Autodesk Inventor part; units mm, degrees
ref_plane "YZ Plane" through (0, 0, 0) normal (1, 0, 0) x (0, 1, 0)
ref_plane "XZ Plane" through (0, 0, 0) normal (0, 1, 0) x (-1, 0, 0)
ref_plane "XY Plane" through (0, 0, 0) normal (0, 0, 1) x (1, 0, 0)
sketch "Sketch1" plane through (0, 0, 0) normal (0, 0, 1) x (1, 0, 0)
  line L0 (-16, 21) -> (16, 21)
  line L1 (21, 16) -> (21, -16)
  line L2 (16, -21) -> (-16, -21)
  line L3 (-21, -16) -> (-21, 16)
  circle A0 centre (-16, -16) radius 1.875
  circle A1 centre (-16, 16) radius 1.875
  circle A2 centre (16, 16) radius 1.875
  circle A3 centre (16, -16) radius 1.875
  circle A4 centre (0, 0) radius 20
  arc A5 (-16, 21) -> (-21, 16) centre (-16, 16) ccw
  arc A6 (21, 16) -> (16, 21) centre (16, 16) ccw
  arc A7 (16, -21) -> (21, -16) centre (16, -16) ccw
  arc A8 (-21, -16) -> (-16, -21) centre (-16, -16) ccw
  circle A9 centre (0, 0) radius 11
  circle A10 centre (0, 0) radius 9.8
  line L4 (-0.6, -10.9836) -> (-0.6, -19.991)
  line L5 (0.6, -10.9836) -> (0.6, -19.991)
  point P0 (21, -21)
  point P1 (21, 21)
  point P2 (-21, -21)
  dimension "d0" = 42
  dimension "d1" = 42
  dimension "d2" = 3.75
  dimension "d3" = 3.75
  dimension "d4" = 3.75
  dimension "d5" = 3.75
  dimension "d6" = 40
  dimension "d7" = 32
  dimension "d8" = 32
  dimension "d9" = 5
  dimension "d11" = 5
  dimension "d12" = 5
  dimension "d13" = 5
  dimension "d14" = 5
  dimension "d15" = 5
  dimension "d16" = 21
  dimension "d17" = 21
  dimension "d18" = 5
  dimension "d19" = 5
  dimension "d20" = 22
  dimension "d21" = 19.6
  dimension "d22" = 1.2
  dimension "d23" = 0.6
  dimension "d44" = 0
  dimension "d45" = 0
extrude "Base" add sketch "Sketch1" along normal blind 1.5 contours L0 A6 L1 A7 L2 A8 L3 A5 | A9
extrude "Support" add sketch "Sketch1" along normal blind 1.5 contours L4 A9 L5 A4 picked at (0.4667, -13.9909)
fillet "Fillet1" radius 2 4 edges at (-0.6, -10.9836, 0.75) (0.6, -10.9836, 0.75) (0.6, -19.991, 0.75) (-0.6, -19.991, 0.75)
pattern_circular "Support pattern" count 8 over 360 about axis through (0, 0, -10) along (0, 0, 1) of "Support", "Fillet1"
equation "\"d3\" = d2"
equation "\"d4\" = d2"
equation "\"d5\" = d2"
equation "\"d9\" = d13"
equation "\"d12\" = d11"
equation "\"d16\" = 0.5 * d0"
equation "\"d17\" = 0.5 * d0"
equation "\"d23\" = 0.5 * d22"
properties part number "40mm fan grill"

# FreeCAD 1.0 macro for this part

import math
import FreeCAD as App
import Part
import Sketcher

V = App.Vector
Q = App.Units.Quantity


def edges_at(feature, points):
    """Names of the edges that pass closest to the given points."""
    edges = feature.Shape.Edges
    near = lambda p: min(range(len(edges)), key=lambda i: edges[i].distToShape(Part.Vertex(*p))[0])
    return sorted({f"Edge{near(p) + 1}" for p in points})

doc = App.newDocument("Part")
body = doc.addObject("PartDesign::Body", "Body")
body.AllowCompound = True

# Sketch on XY plane
sketch1 = doc.addObject("Sketcher::SketchObject", "Sketch")
body.addObject(sketch1)
sketch1.AttachmentSupport = (doc.XY_Plane, [""])
sketch1.MapMode = "FlatFace"
sketch1.addGeometry([
    Part.LineSegment(V(16, 21, 0), V(-16, 21, 0)),  # 0
    Part.ArcOfCircle(Part.Circle(V(-16, 16, 0), V(0, 0, 1), 5), math.radians(90), math.radians(180)),  # 1
    Part.LineSegment(V(-21, 16, 0), V(-21, -16, 0)),  # 2
    Part.ArcOfCircle(Part.Circle(V(-16, -16, 0), V(0, 0, 1), 5), math.radians(180), math.radians(270)),  # 3
    Part.LineSegment(V(-16, -21, 0), V(16, -21, 0)),  # 4
    Part.ArcOfCircle(Part.Circle(V(16, -16, 0), V(0, 0, 1), 5), math.radians(-90), math.radians(0)),  # 5
    Part.LineSegment(V(21, -16, 0), V(21, 16, 0)),  # 6
    Part.ArcOfCircle(Part.Circle(V(16, 16, 0), V(0, 0, 1), 5), math.radians(0), math.radians(90)),  # 7
    Part.Circle(V(-16, -16, 0), V(0, 0, 1), 1.9),  # 8
    Part.Circle(V(16, -16, 0), V(0, 0, 1), 1.9),  # 9
    Part.Circle(V(-16, 16, 0), V(0, 0, 1), 1.9),  # 10
    Part.Circle(V(0, 0, 0), V(0, 0, 1), 20),  # 11
    Part.Circle(V(16, 16, 0), V(0, 0, 1), 1.9),  # 12
    Part.Circle(V(0, 0, 0), V(0, 0, 1), 11),  # 13
    Part.Circle(V(0, 0, 0), V(0, 0, 1), 9.8),  # 14
], False)
sketch1.addConstraint([
    Sketcher.Constraint("Tangent", 0, 2, 1, 1),
    Sketcher.Constraint("Tangent", 1, 2, 2, 1),
    Sketcher.Constraint("Tangent", 2, 2, 3, 1),
    Sketcher.Constraint("Tangent", 3, 2, 4, 1),
    Sketcher.Constraint("Tangent", 4, 2, 5, 1),
    Sketcher.Constraint("Tangent", 5, 2, 6, 1),
    Sketcher.Constraint("Tangent", 6, 2, 7, 1),
    Sketcher.Constraint("Tangent", 7, 2, 0, 1),
    Sketcher.Constraint("Horizontal", 0),
    Sketcher.Constraint("Vertical", 2),
    Sketcher.Constraint("Horizontal", 4),
    Sketcher.Constraint("Vertical", 6),
    Sketcher.Constraint("Coincident", 11, 3, -1, 1),
    Sketcher.Constraint("Coincident", 13, 3, -1, 1),
    Sketcher.Constraint("Coincident", 14, 3, -1, 1),
    Sketcher.Constraint("Coincident", 8, 3, 3, 3),
    Sketcher.Constraint("Coincident", 9, 3, 5, 3),
    Sketcher.Constraint("Coincident", 10, 3, 1, 3),
    Sketcher.Constraint("Coincident", 12, 3, 7, 3),
    Sketcher.Constraint("Equal", 1, 3),
    Sketcher.Constraint("Equal", 3, 5),
    Sketcher.Constraint("Equal", 5, 7),
    Sketcher.Constraint("Equal", 8, 9),
    Sketcher.Constraint("Equal", 9, 10),
    Sketcher.Constraint("Equal", 10, 12),
    Sketcher.Constraint("Symmetric", 1, 3, 5, 3, -1, 1),
    Sketcher.Constraint("Equal", 4, 2),
    Sketcher.Constraint("Diameter", 11, Q("40 mm")),
    Sketcher.Constraint("Diameter", 13, Q("22 mm")),
    Sketcher.Constraint("Radius", 1, Q("5 mm")),
    Sketcher.Constraint("Diameter", 14, Q("19.6 mm")),
    Sketcher.Constraint("Diameter", 8, Q("3.75 mm")),
    Sketcher.Constraint("DistanceX", 0, 2, 0, 1, Q("32 mm")),
])
pad1 = doc.addObject("PartDesign::Pad", "Pad")
body.addObject(pad1)
pad1.Profile = sketch1
pad1.Length = 1.5

# Sketch on XY plane
sketch2 = doc.addObject("Sketcher::SketchObject", "Sketch001")
body.addObject(sketch2)
sketch2.AttachmentSupport = (doc.XY_Plane, [""])
sketch2.MapMode = "FlatFace"
sketch2.addGeometry([
    Part.LineSegment(V(-0.6, -11, 0), V(-0.6, -20, 0)),
    Part.ArcOfCircle(Part.Circle(V(0, 0, 0), V(0, 0, 1), 20), math.radians(-91.72), math.radians(-88.28)),
    Part.LineSegment(V(0.6, -20, 0), V(0.6, -11, 0)),
    Part.ArcOfCircle(Part.Circle(V(0, 0, 0), V(0, 0, 1), 11), math.radians(-93.13), math.radians(-86.87)),
], False)
sketch2.addConstraint([
    Sketcher.Constraint("Coincident", 0, 2, 1, 1),
    Sketcher.Constraint("Coincident", 1, 2, 2, 1),
    Sketcher.Constraint("Coincident", 2, 2, 3, 2),
    Sketcher.Constraint("Coincident", 3, 1, 0, 1),
    Sketcher.Constraint("Vertical", 0),
    Sketcher.Constraint("Vertical", 2),
    Sketcher.Constraint("Coincident", 1, 3, -1, 1),
    Sketcher.Constraint("Coincident", 3, 3, -1, 1),
    Sketcher.Constraint("Horizontal", 0, 2, 1, 2),
    Sketcher.Constraint("Radius", 1, Q("20 mm")),
    Sketcher.Constraint("Radius", 3, Q("11 mm")),
    Sketcher.Constraint("DistanceX", 0, 2, -1, 1, Q("0.6 mm")),
])
pad2 = doc.addObject("PartDesign::Pad", "Pad001")
body.addObject(pad2)
pad2.Profile = sketch2
pad2.Length = 1.5
doc.recompute()

fillet = doc.addObject("PartDesign::Fillet", "Fillet")
body.addObject(fillet)
fillet.Base = (pad2, edges_at(pad2, [
    (-0.6, -10.984, 0.75),
    (0.6, -10.984, 0.75),
    (0.6, -19.991, 0.75),
    (-0.6, -19.991, 0.75),
]))
fillet.Radius = 2
doc.recompute()

polarpattern = doc.addObject("PartDesign::PolarPattern", "PolarPattern")
body.addObject(polarpattern)
polarpattern.Originals = [pad2, fillet]
polarpattern.Axis = (doc.Z_Axis, [""])
polarpattern.Angle = 360
polarpattern.Occurrences = 8
body.Tip = polarpattern

doc.recompute()
